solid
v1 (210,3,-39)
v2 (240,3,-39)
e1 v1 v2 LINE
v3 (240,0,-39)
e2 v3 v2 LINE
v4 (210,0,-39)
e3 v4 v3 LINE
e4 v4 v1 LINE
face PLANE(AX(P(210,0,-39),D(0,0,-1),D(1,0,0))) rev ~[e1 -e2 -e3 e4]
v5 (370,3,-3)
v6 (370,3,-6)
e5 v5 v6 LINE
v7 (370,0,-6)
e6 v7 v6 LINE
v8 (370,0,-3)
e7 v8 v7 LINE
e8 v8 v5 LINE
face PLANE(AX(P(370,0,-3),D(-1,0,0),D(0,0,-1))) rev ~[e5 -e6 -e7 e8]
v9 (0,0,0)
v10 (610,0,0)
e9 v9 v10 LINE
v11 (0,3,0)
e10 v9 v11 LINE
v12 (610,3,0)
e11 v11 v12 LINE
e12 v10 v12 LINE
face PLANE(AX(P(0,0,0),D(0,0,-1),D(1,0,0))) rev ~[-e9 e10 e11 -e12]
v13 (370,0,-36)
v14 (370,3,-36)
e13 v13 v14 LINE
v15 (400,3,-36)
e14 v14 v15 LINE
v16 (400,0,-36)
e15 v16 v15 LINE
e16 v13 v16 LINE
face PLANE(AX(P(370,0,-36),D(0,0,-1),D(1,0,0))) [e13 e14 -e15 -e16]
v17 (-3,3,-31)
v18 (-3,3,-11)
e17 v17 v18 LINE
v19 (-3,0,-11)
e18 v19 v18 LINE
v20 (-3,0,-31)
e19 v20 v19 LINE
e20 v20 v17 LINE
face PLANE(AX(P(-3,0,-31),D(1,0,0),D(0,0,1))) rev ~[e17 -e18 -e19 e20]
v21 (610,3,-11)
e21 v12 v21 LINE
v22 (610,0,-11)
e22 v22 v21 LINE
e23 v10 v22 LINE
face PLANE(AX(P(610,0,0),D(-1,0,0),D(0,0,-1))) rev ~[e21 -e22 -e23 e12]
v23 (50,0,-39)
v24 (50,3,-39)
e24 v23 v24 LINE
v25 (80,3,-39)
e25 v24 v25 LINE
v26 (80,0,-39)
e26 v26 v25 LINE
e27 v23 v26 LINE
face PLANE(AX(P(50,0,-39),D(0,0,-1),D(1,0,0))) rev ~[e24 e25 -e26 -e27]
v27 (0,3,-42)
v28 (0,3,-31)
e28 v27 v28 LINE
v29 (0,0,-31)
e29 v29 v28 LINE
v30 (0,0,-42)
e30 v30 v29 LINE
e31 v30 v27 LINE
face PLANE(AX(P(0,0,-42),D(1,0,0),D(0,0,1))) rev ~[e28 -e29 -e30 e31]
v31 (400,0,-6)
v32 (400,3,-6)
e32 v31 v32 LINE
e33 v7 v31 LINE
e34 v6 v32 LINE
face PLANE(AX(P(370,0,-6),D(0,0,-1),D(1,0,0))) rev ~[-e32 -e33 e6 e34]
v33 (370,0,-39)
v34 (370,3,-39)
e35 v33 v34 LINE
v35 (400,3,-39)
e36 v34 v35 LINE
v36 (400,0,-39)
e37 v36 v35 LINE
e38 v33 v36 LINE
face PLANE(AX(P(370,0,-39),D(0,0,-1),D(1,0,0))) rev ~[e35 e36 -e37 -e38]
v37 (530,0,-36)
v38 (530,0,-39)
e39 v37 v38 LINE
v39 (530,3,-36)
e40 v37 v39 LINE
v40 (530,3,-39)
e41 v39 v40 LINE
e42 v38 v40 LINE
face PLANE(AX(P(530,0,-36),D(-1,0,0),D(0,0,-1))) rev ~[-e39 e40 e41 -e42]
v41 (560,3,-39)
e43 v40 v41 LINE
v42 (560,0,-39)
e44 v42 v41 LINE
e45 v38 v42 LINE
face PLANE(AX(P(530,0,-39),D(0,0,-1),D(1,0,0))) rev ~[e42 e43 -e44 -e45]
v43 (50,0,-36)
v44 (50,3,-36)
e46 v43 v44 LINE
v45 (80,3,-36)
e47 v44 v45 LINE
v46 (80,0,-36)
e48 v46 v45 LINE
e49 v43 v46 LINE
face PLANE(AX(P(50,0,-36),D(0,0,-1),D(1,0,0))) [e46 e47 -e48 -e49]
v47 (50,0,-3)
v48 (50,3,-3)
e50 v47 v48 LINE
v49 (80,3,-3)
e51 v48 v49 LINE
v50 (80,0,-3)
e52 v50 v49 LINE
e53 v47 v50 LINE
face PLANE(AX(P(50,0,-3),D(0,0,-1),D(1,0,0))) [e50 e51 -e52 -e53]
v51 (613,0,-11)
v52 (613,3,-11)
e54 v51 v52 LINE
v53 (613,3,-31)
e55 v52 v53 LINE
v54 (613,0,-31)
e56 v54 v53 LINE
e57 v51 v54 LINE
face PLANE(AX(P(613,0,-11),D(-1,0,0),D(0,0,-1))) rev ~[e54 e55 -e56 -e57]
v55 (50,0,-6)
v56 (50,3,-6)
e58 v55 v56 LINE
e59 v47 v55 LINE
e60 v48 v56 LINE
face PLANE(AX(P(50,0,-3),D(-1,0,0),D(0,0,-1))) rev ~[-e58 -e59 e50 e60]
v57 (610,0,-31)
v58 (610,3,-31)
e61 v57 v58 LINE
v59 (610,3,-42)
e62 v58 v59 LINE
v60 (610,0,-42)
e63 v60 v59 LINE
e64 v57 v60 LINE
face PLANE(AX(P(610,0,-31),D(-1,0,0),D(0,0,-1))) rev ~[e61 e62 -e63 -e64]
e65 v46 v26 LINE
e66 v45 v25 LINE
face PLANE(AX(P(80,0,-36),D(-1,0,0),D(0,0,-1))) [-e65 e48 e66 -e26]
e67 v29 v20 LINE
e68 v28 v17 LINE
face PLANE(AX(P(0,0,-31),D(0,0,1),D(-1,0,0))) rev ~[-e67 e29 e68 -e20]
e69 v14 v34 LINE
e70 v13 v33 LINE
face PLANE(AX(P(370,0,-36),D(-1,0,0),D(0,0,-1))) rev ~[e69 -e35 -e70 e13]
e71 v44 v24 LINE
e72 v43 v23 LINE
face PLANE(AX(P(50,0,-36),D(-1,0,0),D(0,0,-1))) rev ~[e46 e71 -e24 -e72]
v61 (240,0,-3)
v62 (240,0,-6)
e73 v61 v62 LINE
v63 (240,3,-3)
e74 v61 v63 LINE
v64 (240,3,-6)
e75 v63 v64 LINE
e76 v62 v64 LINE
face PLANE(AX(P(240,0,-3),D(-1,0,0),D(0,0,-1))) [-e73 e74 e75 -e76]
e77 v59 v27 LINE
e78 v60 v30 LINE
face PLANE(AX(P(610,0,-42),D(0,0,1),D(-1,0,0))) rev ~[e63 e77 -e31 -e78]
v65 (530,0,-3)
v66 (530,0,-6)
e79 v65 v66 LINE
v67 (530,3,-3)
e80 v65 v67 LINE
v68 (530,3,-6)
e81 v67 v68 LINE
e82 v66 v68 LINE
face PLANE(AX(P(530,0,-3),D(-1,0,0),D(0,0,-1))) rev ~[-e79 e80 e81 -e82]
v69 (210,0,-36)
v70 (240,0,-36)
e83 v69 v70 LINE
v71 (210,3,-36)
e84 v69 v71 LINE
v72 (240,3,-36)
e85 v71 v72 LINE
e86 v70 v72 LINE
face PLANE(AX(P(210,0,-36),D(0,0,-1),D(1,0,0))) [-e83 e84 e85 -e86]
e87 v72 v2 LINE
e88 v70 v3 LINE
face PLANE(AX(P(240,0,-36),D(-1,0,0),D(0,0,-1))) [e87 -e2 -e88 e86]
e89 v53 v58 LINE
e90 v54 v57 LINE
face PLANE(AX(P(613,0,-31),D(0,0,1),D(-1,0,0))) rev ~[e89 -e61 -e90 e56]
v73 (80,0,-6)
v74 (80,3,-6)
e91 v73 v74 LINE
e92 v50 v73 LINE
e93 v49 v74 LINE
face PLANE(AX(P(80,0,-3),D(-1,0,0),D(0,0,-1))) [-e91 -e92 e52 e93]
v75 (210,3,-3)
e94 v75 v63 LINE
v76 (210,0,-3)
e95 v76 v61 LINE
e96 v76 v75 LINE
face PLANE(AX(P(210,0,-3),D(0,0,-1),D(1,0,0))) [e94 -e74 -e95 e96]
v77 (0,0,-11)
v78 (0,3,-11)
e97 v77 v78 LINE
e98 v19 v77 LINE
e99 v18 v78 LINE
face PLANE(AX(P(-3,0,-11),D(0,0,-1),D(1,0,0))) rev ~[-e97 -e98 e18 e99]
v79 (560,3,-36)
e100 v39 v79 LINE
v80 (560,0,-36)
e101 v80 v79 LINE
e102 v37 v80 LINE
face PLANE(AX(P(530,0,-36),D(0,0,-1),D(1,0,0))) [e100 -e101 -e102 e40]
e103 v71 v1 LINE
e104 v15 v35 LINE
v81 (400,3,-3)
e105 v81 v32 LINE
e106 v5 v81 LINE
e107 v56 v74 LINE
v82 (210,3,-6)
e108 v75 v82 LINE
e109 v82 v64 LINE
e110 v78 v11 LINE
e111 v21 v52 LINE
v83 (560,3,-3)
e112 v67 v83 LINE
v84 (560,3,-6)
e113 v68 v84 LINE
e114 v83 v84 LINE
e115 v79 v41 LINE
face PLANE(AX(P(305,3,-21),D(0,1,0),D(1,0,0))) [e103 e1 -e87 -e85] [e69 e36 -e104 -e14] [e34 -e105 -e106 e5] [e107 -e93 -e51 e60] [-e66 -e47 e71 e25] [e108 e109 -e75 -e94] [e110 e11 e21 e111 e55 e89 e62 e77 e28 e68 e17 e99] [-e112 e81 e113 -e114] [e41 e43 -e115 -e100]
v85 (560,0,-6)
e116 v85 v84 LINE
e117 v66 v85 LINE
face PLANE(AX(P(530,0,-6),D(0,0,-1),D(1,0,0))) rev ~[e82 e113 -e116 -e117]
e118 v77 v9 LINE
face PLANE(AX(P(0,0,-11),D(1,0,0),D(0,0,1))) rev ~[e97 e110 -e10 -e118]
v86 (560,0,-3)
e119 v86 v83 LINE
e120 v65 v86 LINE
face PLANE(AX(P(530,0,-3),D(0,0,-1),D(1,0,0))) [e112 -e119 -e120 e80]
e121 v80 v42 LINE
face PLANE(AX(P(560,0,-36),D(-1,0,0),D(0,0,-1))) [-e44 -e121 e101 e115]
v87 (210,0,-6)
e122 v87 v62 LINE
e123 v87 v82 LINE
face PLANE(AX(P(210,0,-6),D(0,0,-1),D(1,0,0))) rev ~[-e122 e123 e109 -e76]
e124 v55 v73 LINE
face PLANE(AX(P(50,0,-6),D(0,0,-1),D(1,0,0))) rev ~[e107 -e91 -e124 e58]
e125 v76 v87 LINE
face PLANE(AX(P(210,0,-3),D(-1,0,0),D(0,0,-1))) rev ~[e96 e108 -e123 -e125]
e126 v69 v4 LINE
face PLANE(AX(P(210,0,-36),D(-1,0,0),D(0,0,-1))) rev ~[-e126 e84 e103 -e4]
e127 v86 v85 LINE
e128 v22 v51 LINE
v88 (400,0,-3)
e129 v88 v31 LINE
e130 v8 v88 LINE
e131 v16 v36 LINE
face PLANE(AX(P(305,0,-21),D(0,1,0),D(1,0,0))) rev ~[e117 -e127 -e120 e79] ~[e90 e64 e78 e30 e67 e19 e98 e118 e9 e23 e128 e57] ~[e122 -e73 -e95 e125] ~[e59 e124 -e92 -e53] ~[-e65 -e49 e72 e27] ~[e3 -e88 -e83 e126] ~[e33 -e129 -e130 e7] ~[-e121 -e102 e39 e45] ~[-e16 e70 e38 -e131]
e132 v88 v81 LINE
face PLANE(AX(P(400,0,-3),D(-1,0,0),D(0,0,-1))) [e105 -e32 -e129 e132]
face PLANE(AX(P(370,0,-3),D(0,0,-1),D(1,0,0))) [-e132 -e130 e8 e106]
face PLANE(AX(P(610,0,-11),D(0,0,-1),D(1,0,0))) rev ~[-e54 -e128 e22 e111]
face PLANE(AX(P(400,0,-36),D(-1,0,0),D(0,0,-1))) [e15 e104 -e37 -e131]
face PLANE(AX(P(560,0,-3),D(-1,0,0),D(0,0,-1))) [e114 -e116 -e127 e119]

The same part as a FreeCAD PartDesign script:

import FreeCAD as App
import Part
import Sketcher

V = App.Vector

doc = App.newDocument("Part")
body = doc.addObject("PartDesign::Body", "Body")

sketch1 = doc.addObject("Sketcher::SketchObject", "Sketch")
body.addObject(sketch1)
sketch1.AttachmentSupport = (doc.XZ_Plane, [""])
sketch1.MapMode = "FlatFace"
sketch1.addGeometry([
    Part.LineSegment(V(0, 0, 0), V(610, 0, 0)),
    Part.LineSegment(V(610, 0, 0), V(610, -11, 0)),
    Part.LineSegment(V(610, -11, 0), V(613, -11, 0)),
    Part.LineSegment(V(613, -11, 0), V(613, -31, 0)),
    Part.LineSegment(V(613, -31, 0), V(610, -31, 0)),
    Part.LineSegment(V(610, -31, 0), V(610, -42, 0)),
    Part.LineSegment(V(610, -42, 0), V(0, -42, 0)),
    Part.LineSegment(V(0, -42, 0), V(0, -31, 0)),
    Part.LineSegment(V(0, -31, 0), V(-3, -31, 0)),
    Part.LineSegment(V(-3, -31, 0), V(-3, -11, 0)),
    Part.LineSegment(V(-3, -11, 0), V(0, -11, 0)),
    Part.LineSegment(V(0, -11, 0), V(0, 0, 0)),
    Part.LineSegment(V(80, -3, 0), V(50, -3, 0)),
    Part.LineSegment(V(50, -3, 0), V(50, -6, 0)),
    Part.LineSegment(V(50, -6, 0), V(80, -6, 0)),
    Part.LineSegment(V(80, -6, 0), V(80, -3, 0)),
    Part.LineSegment(V(240, -3, 0), V(210, -3, 0)),
    Part.LineSegment(V(210, -3, 0), V(210, -6, 0)),
    Part.LineSegment(V(210, -6, 0), V(240, -6, 0)),
    Part.LineSegment(V(240, -6, 0), V(240, -3, 0)),
    Part.LineSegment(V(400, -3, 0), V(370, -3, 0)),
    Part.LineSegment(V(370, -3, 0), V(370, -6, 0)),
    Part.LineSegment(V(370, -6, 0), V(400, -6, 0)),
    Part.LineSegment(V(400, -6, 0), V(400, -3, 0)),
    Part.LineSegment(V(560, -3, 0), V(530, -3, 0)),
    Part.LineSegment(V(530, -3, 0), V(530, -6, 0)),
    Part.LineSegment(V(530, -6, 0), V(560, -6, 0)),
    Part.LineSegment(V(560, -6, 0), V(560, -3, 0)),
    Part.LineSegment(V(80, -36, 0), V(50, -36, 0)),
    Part.LineSegment(V(50, -36, 0), V(50, -39, 0)),
    Part.LineSegment(V(50, -39, 0), V(80, -39, 0)),
    Part.LineSegment(V(80, -39, 0), V(80, -36, 0)),
    Part.LineSegment(V(240, -36, 0), V(210, -36, 0)),
    Part.LineSegment(V(210, -36, 0), V(210, -39, 0)),
    Part.LineSegment(V(210, -39, 0), V(240, -39, 0)),
    Part.LineSegment(V(240, -39, 0), V(240, -36, 0)),
    Part.LineSegment(V(400, -36, 0), V(370, -36, 0)),
    Part.LineSegment(V(370, -36, 0), V(370, -39, 0)),
    Part.LineSegment(V(370, -39, 0), V(400, -39, 0)),
    Part.LineSegment(V(400, -39, 0), V(400, -36, 0)),
    Part.LineSegment(V(560, -36, 0), V(530, -36, 0)),
    Part.LineSegment(V(530, -36, 0), V(530, -39, 0)),
    Part.LineSegment(V(530, -39, 0), V(560, -39, 0)),
    Part.LineSegment(V(560, -39, 0), V(560, -36, 0)),
], False)
sketch1.addConstraint([
    Sketcher.Constraint("Coincident", 0, 2, 1, 1),
    Sketcher.Constraint("Coincident", 1, 2, 2, 1),
    Sketcher.Constraint("Coincident", 2, 2, 3, 1),
    Sketcher.Constraint("Coincident", 3, 2, 4, 1),
    Sketcher.Constraint("Coincident", 4, 2, 5, 1),
    Sketcher.Constraint("Coincident", 5, 2, 6, 1),
    Sketcher.Constraint("Coincident", 6, 2, 7, 1),
    Sketcher.Constraint("Coincident", 7, 2, 8, 1),
    Sketcher.Constraint("Coincident", 8, 2, 9, 1),
    Sketcher.Constraint("Coincident", 9, 2, 10, 1),
    Sketcher.Constraint("Coincident", 10, 2, 11, 1),
    Sketcher.Constraint("Coincident", 11, 2, 0, 1),
    Sketcher.Constraint("Coincident", 12, 2, 13, 1),
    Sketcher.Constraint("Coincident", 13, 2, 14, 1),
    Sketcher.Constraint("Coincident", 14, 2, 15, 1),
    Sketcher.Constraint("Coincident", 15, 2, 12, 1),
    Sketcher.Constraint("Coincident", 16, 2, 17, 1),
    Sketcher.Constraint("Coincident", 17, 2, 18, 1),
    Sketcher.Constraint("Coincident", 18, 2, 19, 1),
    Sketcher.Constraint("Coincident", 19, 2, 16, 1),
    Sketcher.Constraint("Coincident", 20, 2, 21, 1),
    Sketcher.Constraint("Coincident", 21, 2, 22, 1),
    Sketcher.Constraint("Coincident", 22, 2, 23, 1),
    Sketcher.Constraint("Coincident", 23, 2, 20, 1),
    Sketcher.Constraint("Coincident", 24, 2, 25, 1),
    Sketcher.Constraint("Coincident", 25, 2, 26, 1),
    Sketcher.Constraint("Coincident", 26, 2, 27, 1),
    Sketcher.Constraint("Coincident", 27, 2, 24, 1),
    Sketcher.Constraint("Coincident", 28, 2, 29, 1),
    Sketcher.Constraint("Coincident", 29, 2, 30, 1),
    Sketcher.Constraint("Coincident", 30, 2, 31, 1),
    Sketcher.Constraint("Coincident", 31, 2, 28, 1),
    Sketcher.Constraint("Coincident", 32, 2, 33, 1),
    Sketcher.Constraint("Coincident", 33, 2, 34, 1),
    Sketcher.Constraint("Coincident", 34, 2, 35, 1),
    Sketcher.Constraint("Coincident", 35, 2, 32, 1),
    Sketcher.Constraint("Coincident", 36, 2, 37, 1),
    Sketcher.Constraint("Coincident", 37, 2, 38, 1),
    Sketcher.Constraint("Coincident", 38, 2, 39, 1),
    Sketcher.Constraint("Coincident", 39, 2, 36, 1),
    Sketcher.Constraint("Coincident", 40, 2, 41, 1),
    Sketcher.Constraint("Coincident", 41, 2, 42, 1),
    Sketcher.Constraint("Coincident", 42, 2, 43, 1),
    Sketcher.Constraint("Coincident", 43, 2, 40, 1),
    Sketcher.Constraint("Horizontal", 0),
    Sketcher.Constraint("Vertical", 1),
    Sketcher.Constraint("Horizontal", 2),
    Sketcher.Constraint("Vertical", 3),
    Sketcher.Constraint("Horizontal", 4),
    Sketcher.Constraint("Vertical", 5),
    Sketcher.Constraint("Horizontal", 6),
    Sketcher.Constraint("Vertical", 7),
    Sketcher.Constraint("Horizontal", 8),
    Sketcher.Constraint("Vertical", 9),
    Sketcher.Constraint("Horizontal", 10),
    Sketcher.Constraint("Vertical", 11),
    Sketcher.Constraint("Horizontal", 12),
    Sketcher.Constraint("Vertical", 13),
    Sketcher.Constraint("Horizontal", 14),
    Sketcher.Constraint("Vertical", 15),
    Sketcher.Constraint("Horizontal", 16),
    Sketcher.Constraint("Vertical", 17),
    Sketcher.Constraint("Horizontal", 18),
    Sketcher.Constraint("Vertical", 19),
    Sketcher.Constraint("Horizontal", 20),
    Sketcher.Constraint("Vertical", 21),
    Sketcher.Constraint("Horizontal", 22),
    Sketcher.Constraint("Vertical", 23),
    Sketcher.Constraint("Horizontal", 24),
    Sketcher.Constraint("Vertical", 25),
    Sketcher.Constraint("Horizontal", 26),
    Sketcher.Constraint("Vertical", 27),
    Sketcher.Constraint("Horizontal", 28),
    Sketcher.Constraint("Vertical", 29),
    Sketcher.Constraint("Horizontal", 30),
    Sketcher.Constraint("Vertical", 31),
    Sketcher.Constraint("Horizontal", 32),
    Sketcher.Constraint("Vertical", 33),
    Sketcher.Constraint("Horizontal", 34),
    Sketcher.Constraint("Vertical", 35),
    Sketcher.Constraint("Horizontal", 36),
    Sketcher.Constraint("Vertical", 37),
    Sketcher.Constraint("Horizontal", 38),
    Sketcher.Constraint("Vertical", 39),
    Sketcher.Constraint("Horizontal", 40),
    Sketcher.Constraint("Vertical", 41),
    Sketcher.Constraint("Horizontal", 42),
    Sketcher.Constraint("Vertical", 43),
    Sketcher.Constraint("Coincident", 11, 2, -1, 1),
    Sketcher.Constraint("PointOnObject", 6, 2, -2),
    Sketcher.Constraint("Horizontal", 4, 2, 7, 2),
    Sketcher.Constraint("Horizontal", 2, 2, 9, 2),
    Sketcher.Constraint("Horizontal", 15, 2, 16, 2),
    Sketcher.Constraint("Horizontal", 14, 2, 17, 2),
    Sketcher.Constraint("Horizontal", 19, 2, 20, 2),
    Sketcher.Constraint("Horizontal", 18, 2, 21, 2),
    Sketcher.Constraint("Horizontal", 23, 2, 24, 2),
    Sketcher.Constraint("Horizontal", 22, 2, 25, 2),
    Sketcher.Constraint("Horizontal", 31, 2, 32, 2),
    Sketcher.Constraint("Horizontal", 30, 2, 33, 2),
    Sketcher.Constraint("Horizontal", 35, 2, 36, 2),
    Sketcher.Constraint("Horizontal", 34, 2, 37, 2),
    Sketcher.Constraint("Horizontal", 39, 2, 40, 2),
    Sketcher.Constraint("Horizontal", 38, 2, 41, 2),
    Sketcher.Constraint("Vertical", 1, 2, 4, 2),
    Sketcher.Constraint("Vertical", 13, 2, 28, 2),
    Sketcher.Constraint("Vertical", 15, 2, 30, 2),
    Sketcher.Constraint("Vertical", 17, 2, 32, 2),
    Sketcher.Constraint("Vertical", 19, 2, 34, 2),
    Sketcher.Constraint("Vertical", 21, 2, 36, 2),
    Sketcher.Constraint("Vertical", 23, 2, 38, 2),
    Sketcher.Constraint("Vertical", 25, 2, 40, 2),
    Sketcher.Constraint("Vertical", 27, 2, 42, 2),
    Sketcher.Constraint("Equal", 4, 8),
    Sketcher.Constraint("Equal", 14, 16),
    Sketcher.Constraint("Equal", 18, 20),
    Sketcher.Constraint("Equal", 22, 24),
    Sketcher.Constraint("Equal", 1, 5),
    Sketcher.Constraint("Equal", 10, 13),
    Sketcher.Constraint("Equal", 27, 29),
    Sketcher.Constraint("DistanceX", 0, 1, 0, 2, 610.0),
    Sketcher.Constraint("DistanceX", 2, 1, 2, 2, 3.0),
    Sketcher.Constraint("DistanceX", 12, 2, 12, 1, 30.0),
    Sketcher.Constraint("DistanceY", 1, 2, 1, 1, 11.0),
    Sketcher.Constraint("DistanceY", 3, 2, 3, 1, 20.0),
    Sketcher.Constraint("DistanceX", -1, 1, 12, 2, 50.0),
    Sketcher.Constraint("DistanceY", 12, 2, -1, 1, 3.0),
    Sketcher.Constraint("DistanceX", -1, 1, 16, 2, 210.0),
    Sketcher.Constraint("DistanceX", -1, 1, 20, 2, 370.0),
    Sketcher.Constraint("DistanceX", -1, 1, 24, 2, 530.0),
    Sketcher.Constraint("DistanceY", 28, 2, -1, 1, 36.0),
])
pad1 = doc.addObject("PartDesign::Pad", "Pad")
body.addObject(pad1)
pad1.Profile = sketch1
pad1.Length = 3
pad1.Reversed = True

doc.recompute()
